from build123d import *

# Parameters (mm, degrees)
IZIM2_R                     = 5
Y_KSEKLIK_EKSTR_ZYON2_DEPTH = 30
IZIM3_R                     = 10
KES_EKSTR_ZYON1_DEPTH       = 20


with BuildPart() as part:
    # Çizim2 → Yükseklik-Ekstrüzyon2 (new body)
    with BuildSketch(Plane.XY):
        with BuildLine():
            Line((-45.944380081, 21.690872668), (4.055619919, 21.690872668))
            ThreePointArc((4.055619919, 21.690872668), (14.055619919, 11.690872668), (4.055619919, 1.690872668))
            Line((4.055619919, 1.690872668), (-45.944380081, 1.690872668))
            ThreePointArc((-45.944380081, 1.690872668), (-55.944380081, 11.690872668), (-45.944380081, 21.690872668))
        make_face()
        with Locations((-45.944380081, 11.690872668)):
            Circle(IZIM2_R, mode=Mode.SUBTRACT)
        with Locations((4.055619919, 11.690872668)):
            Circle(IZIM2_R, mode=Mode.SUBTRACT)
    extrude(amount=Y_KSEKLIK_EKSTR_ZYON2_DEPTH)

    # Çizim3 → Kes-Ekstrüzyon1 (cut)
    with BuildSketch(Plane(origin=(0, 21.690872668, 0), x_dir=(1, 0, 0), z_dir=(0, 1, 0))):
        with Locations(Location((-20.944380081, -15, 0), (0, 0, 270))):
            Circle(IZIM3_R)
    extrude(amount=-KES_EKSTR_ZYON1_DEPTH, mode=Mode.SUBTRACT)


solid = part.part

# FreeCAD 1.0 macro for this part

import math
import FreeCAD as App
import Part
import Sketcher
Q = App.Units.Quantity

doc = App.newDocument("Part")
body = doc.addObject("PartDesign::Body", "Body")

# Sketch on XY plane
sketch1 = body.newObject("Sketcher::SketchObject", "Sketch")
sketch1.AttachmentSupport = (doc.getObject("XY_Plane"), [""])
sketch1.MapMode = "FlatFace"
sketch1.addGeometry([
    Part.LineSegment(App.Vector(4.05562, 21.690873, 0), App.Vector(-45.94438, 21.690873, 0)),  # 0
    Part.ArcOfCircle(Part.Circle(App.Vector(-45.94438, 11.690873, 0), App.Vector(0, 0, 1), 10), math.radians(90), math.radians(270)),  # 1
    Part.LineSegment(App.Vector(-45.94438, 1.690873, 0), App.Vector(4.05562, 1.690873, 0)),  # 2
    Part.ArcOfCircle(Part.Circle(App.Vector(4.05562, 11.690873, 0), App.Vector(0, 0, 1), 10), math.radians(-90), math.radians(90)),  # 3
    Part.Circle(App.Vector(4.05562, 11.690873, 0), App.Vector(0, 0, 1), 5),  # 4
    Part.Circle(App.Vector(-45.94438, 11.690873, 0), App.Vector(0, 0, 1), 5),  # 5
], False)
sketch1.addConstraint([
    Sketcher.Constraint("Tangent", 0, 2, 1, 1),
    Sketcher.Constraint("Tangent", 1, 2, 2, 1),
    Sketcher.Constraint("Tangent", 2, 2, 3, 1),
    Sketcher.Constraint("Tangent", 3, 2, 0, 1),
    Sketcher.Constraint("Horizontal", 0),
    Sketcher.Constraint("Horizontal", 2),
    Sketcher.Constraint("Coincident", 4, 3, 3, 3),
    Sketcher.Constraint("Coincident", 5, 3, 1, 3),
    Sketcher.Constraint("Equal", 4, 5),
    Sketcher.Constraint("Diameter", 4, Q("10 mm")),
    Sketcher.Constraint("Radius", 1, Q("10 mm")),
    Sketcher.Constraint("DistanceX", 0, 2, 0, 1, Q("50 mm")),
    Sketcher.Constraint("DistanceX", 1, 3, -1, 1, Q("45.94438 mm")),
    Sketcher.Constraint("DistanceY", -1, 1, 1, 3, Q("11.690873 mm")),
])
pad1 = body.newObject("PartDesign::Pad", "Pad")
pad1.Profile = sketch1
pad1.Length = 30

# Sketch on XZ plane
sketch2 = body.newObject("Sketcher::SketchObject", "Sketch001")
sketch2.AttachmentSupport = (doc.getObject("XZ_Plane"), [""])
sketch2.MapMode = "FlatFace"
sketch2.AttachmentOffset = App.Placement(App.Vector(0, 0, -21.690873), App.Rotation())
sketch2.addGeometry(Part.Circle(App.Vector(-20.94438, 15, 0), App.Vector(0, 0, 1), 10), False)
sketch2.addConstraint([
    Sketcher.Constraint("Diameter", 0, Q("20 mm")),
    Sketcher.Constraint("DistanceY", -1, 1, 0, 3, Q("15 mm")),
    Sketcher.Constraint("DistanceX", 0, 3, -1, 1, Q("20.94438 mm")),
])
pocket1 = body.newObject("PartDesign::Pocket", "Pocket")
pocket1.Profile = sketch2
pocket1.Length = 20
pocket1.Reversed = True

doc.recompute()
